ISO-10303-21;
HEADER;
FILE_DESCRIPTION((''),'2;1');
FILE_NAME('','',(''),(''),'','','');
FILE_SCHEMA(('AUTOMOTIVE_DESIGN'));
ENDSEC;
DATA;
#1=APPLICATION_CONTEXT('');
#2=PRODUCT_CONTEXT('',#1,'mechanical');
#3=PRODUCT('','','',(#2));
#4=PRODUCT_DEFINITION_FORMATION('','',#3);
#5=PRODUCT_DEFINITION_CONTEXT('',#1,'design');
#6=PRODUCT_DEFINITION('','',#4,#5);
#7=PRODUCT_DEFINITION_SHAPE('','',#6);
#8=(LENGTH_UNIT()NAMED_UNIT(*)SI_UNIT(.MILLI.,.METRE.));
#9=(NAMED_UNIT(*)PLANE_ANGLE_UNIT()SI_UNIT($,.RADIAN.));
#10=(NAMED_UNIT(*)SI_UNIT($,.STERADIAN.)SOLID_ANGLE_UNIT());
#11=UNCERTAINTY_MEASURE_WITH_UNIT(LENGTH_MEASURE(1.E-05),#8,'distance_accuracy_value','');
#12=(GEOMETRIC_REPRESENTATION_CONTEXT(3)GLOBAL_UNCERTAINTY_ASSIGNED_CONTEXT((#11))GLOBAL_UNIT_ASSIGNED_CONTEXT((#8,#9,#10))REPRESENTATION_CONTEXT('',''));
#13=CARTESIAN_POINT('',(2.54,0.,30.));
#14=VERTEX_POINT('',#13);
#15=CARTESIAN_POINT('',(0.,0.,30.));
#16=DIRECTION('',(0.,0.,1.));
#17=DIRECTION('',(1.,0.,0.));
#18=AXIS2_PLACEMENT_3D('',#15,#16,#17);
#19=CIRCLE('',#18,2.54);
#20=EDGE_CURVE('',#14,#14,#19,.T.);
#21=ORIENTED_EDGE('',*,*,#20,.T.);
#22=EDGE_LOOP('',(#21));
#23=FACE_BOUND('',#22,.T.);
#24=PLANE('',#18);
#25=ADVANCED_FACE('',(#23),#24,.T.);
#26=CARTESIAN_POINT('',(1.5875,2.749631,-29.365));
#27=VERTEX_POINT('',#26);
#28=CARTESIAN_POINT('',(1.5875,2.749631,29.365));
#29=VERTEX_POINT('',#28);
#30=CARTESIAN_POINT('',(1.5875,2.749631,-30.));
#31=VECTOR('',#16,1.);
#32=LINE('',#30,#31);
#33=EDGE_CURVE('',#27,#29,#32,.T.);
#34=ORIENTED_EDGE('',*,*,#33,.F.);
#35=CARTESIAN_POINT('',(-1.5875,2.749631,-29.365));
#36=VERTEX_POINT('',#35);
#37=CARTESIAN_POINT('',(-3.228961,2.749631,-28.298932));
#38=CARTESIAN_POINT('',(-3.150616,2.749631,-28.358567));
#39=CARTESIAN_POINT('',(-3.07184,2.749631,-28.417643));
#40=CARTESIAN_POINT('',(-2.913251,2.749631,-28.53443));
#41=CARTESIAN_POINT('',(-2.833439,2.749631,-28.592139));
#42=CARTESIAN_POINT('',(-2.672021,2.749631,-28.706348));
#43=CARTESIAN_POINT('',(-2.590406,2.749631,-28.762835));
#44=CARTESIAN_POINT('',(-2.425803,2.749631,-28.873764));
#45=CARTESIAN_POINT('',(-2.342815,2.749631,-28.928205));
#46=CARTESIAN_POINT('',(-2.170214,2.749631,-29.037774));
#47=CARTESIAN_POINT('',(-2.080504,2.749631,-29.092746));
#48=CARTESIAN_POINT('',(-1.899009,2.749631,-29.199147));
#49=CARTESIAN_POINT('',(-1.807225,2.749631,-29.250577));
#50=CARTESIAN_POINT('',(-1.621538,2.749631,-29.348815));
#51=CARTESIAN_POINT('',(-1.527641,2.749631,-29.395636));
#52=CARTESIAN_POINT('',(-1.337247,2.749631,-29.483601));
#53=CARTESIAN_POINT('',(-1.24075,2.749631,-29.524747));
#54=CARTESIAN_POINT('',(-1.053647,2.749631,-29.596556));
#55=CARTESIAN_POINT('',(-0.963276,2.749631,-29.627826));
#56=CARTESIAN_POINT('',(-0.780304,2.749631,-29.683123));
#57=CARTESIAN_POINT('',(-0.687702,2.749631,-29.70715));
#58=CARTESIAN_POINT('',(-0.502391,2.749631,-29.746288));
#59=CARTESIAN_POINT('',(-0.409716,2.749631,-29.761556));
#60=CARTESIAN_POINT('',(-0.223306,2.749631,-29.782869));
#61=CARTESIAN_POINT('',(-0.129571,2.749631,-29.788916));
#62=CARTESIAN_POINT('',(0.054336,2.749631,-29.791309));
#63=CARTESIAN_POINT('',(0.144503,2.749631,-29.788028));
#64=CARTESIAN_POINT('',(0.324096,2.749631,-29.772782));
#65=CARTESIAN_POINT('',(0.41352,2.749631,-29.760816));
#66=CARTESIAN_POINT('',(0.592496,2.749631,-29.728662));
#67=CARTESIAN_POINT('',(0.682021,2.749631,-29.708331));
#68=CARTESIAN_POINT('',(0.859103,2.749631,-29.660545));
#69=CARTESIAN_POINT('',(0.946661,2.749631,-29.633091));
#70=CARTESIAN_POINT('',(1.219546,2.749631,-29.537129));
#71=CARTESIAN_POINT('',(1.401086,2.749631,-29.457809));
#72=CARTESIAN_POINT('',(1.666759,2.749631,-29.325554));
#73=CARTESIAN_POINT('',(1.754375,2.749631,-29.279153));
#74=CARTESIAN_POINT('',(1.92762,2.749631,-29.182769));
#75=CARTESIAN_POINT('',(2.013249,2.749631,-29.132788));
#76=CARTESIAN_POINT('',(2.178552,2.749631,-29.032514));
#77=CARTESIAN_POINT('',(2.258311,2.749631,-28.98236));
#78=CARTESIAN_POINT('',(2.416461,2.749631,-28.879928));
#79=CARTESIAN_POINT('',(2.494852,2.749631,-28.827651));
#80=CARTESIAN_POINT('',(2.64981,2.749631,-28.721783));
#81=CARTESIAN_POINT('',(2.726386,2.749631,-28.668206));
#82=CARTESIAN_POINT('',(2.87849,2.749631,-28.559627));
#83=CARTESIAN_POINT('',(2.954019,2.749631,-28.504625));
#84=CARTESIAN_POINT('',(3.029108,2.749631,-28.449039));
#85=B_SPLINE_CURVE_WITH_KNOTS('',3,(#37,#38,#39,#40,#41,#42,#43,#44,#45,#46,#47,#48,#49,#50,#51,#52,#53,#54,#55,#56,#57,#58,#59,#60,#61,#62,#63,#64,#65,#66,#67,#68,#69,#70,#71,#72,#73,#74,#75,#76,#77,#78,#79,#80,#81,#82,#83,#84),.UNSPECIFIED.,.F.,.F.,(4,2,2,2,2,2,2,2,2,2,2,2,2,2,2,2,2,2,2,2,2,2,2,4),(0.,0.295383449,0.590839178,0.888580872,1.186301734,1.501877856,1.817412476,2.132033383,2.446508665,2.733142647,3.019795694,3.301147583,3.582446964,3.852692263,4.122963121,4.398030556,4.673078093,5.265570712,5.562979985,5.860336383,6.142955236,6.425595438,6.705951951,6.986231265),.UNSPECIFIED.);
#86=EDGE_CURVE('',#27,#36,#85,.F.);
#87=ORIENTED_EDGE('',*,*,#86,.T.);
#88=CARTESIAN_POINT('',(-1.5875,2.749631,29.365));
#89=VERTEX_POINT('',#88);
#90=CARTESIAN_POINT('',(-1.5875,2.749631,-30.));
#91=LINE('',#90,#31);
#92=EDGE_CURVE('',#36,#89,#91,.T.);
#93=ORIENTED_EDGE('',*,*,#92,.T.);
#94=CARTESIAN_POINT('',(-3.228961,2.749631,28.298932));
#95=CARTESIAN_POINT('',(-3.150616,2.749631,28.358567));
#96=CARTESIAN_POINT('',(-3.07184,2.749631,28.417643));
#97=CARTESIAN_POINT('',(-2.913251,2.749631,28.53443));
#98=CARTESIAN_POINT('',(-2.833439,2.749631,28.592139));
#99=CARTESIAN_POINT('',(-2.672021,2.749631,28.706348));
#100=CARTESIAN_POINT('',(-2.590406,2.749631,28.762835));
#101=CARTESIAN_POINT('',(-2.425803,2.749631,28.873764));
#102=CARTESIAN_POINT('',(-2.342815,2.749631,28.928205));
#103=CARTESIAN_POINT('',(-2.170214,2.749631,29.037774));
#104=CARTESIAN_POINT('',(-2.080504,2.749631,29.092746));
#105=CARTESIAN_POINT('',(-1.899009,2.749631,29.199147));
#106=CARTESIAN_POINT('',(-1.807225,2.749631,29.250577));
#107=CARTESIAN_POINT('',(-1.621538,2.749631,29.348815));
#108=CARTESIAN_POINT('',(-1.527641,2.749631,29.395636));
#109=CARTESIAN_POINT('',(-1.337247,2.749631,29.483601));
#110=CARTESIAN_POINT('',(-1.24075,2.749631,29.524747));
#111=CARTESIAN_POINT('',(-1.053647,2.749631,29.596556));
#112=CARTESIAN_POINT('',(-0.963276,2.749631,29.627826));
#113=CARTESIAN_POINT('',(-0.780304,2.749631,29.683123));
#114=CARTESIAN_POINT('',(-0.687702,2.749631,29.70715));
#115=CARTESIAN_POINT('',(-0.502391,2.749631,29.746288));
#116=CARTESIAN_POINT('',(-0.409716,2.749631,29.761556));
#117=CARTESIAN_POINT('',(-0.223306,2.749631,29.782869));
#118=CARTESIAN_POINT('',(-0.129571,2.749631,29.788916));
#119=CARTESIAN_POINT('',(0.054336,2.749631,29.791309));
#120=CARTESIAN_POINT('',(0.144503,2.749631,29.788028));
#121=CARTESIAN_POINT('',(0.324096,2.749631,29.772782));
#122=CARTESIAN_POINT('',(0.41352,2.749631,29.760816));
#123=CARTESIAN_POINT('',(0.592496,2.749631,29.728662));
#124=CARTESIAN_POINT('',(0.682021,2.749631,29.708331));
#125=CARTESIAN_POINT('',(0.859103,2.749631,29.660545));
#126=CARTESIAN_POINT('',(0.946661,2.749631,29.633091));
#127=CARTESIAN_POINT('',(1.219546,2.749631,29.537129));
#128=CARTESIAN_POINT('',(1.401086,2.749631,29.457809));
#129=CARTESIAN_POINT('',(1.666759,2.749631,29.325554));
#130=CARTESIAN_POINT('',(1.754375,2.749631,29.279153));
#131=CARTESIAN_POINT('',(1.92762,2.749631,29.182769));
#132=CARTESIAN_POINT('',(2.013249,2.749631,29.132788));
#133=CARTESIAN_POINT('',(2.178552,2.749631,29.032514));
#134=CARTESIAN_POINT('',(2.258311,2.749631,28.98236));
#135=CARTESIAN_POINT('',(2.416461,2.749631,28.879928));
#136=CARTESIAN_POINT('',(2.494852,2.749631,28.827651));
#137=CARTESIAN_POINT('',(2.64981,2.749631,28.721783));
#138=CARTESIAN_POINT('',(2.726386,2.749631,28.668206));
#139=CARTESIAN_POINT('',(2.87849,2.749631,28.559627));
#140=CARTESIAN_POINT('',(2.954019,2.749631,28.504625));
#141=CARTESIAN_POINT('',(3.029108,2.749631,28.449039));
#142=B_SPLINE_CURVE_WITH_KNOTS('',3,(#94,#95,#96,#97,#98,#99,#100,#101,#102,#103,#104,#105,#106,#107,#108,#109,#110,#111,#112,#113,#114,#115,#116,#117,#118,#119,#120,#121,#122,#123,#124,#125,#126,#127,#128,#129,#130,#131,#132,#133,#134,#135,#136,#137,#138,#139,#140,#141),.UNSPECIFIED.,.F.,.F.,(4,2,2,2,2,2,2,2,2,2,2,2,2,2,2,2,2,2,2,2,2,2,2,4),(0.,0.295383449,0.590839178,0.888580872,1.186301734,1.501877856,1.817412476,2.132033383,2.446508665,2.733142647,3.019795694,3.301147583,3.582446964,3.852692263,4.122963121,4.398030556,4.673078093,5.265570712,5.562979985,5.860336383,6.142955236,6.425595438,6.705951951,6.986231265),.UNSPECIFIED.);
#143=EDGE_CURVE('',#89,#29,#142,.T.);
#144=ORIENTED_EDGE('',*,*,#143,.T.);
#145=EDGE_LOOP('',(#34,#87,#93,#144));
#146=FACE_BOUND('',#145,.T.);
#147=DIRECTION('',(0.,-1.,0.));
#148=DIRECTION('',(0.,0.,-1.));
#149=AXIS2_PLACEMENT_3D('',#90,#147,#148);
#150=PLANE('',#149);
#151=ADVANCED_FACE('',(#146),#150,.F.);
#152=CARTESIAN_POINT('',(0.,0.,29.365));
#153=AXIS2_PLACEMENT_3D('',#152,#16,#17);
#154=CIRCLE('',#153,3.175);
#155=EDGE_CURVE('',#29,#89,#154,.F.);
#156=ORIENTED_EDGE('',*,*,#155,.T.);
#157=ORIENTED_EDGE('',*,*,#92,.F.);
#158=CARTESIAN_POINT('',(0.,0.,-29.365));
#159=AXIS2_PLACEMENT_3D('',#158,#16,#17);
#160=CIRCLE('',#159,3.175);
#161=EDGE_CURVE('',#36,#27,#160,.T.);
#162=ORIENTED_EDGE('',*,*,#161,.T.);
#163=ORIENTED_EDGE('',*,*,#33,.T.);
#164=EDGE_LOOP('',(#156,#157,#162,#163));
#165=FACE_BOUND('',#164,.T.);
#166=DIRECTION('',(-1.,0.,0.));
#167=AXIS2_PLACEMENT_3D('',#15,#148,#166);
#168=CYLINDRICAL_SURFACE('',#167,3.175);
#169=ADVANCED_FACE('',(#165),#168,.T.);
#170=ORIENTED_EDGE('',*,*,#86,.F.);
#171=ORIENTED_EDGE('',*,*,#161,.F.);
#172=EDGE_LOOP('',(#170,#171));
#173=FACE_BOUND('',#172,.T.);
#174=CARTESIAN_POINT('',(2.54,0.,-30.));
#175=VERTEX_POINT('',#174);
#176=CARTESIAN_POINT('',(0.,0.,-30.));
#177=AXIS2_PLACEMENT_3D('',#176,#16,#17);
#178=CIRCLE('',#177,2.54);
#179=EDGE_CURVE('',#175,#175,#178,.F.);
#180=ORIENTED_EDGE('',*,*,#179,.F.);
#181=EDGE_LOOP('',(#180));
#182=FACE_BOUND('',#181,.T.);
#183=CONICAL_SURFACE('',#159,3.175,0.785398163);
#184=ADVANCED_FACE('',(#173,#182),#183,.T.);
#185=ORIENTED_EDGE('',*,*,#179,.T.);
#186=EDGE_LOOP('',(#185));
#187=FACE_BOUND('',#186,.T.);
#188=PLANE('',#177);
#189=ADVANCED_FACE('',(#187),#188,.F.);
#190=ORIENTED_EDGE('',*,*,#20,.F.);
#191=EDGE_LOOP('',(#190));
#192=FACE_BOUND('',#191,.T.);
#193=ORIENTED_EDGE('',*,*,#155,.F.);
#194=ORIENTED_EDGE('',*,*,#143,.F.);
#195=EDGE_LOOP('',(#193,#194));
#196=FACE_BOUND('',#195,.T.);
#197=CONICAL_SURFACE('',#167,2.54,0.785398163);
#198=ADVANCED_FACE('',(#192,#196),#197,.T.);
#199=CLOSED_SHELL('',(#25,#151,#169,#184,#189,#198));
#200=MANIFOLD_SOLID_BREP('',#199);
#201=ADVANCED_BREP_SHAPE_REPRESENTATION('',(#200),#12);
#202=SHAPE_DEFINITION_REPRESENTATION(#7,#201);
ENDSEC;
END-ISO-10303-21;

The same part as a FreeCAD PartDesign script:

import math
import FreeCAD as App
import Part
import Sketcher
from FreeCAD import Vector
Q = App.Units.Quantity


def edges_at(feature, points):
    """Names of the edges that pass closest to the given points."""
    edges = feature.Shape.Edges
    near = lambda p: min(range(len(edges)), key=lambda i: edges[i].distToShape(Part.Vertex(*p))[0])
    return sorted({f"Edge{near(p) + 1}" for p in points})

doc = App.newDocument("Part")
body = doc.addObject("PartDesign::Body", "Body")

# Sketch on XY plane
sketch1 = doc.addObject("Sketcher::SketchObject", "Sketch")
body.addObject(sketch1)
sketch1.AttachmentSupport = (doc.XY_Plane, [""])
sketch1.MapMode = "FlatFace"
sketch1.addGeometry(Part.Circle(Vector(0, 0, 0), Vector(0, 0, 1), 3.2), False)
sketch1.addConstraint(Sketcher.Constraint("Coincident", 0, 3, -1, 1))
sketch1.addConstraint(Sketcher.Constraint("Diameter", 0, Q("0.25 in")))
pad1 = doc.addObject("PartDesign::Pad", "Pad")
body.addObject(pad1)
pad1.Profile = sketch1
pad1.Length = 60
pad1.Midplane = True
doc.recompute()

chamfer = doc.addObject("PartDesign::Chamfer", "Chamfer")
body.addObject(chamfer)
chamfer.Base = (pad1, edges_at(pad1, [(-3.175, 0, -30), (-3.175, 0, 30)]))
chamfer.Size = Q("0.025 in")

# Sketch on XY plane
sketch2 = doc.addObject("Sketcher::SketchObject", "Sketch001")
body.addObject(sketch2)
sketch2.AttachmentSupport = (doc.XY_Plane, [""])
sketch2.MapMode = "FlatFace"
sketch2.addGeometry(Part.LineSegment(Vector(-1.6, 2.7, 0), Vector(1.6, 2.7, 0)), False)
sketch2.addGeometry(Part.ArcOfCircle(Part.Circle(Vector(0, 0, 0), Vector(0, 0, 1), 3.2), math.radians(60), math.radians(120)), False)
sketch2.addConstraint(Sketcher.Constraint("Coincident", 0, 1, 1, 2))
sketch2.addConstraint(Sketcher.Constraint("Coincident", 1, 1, 0, 2))
sketch2.addConstraint(Sketcher.Constraint("Horizontal", 0))
sketch2.addConstraint(Sketcher.Constraint("Coincident", 1, 3, -1, 1))
sketch2.addConstraint(Sketcher.Constraint("Radius", 1, Q("0.125 in")))
sketch2.addConstraint(Sketcher.Constraint("DistanceX", 0, 1, 0, 2, Q("0.125 in")))
pocket1 = doc.addObject("PartDesign::Pocket", "Pocket")
body.addObject(pocket1)
pocket1.Profile = sketch2
pocket1.Type = "ThroughAll"
pocket1.Midplane = True

doc.recompute()
